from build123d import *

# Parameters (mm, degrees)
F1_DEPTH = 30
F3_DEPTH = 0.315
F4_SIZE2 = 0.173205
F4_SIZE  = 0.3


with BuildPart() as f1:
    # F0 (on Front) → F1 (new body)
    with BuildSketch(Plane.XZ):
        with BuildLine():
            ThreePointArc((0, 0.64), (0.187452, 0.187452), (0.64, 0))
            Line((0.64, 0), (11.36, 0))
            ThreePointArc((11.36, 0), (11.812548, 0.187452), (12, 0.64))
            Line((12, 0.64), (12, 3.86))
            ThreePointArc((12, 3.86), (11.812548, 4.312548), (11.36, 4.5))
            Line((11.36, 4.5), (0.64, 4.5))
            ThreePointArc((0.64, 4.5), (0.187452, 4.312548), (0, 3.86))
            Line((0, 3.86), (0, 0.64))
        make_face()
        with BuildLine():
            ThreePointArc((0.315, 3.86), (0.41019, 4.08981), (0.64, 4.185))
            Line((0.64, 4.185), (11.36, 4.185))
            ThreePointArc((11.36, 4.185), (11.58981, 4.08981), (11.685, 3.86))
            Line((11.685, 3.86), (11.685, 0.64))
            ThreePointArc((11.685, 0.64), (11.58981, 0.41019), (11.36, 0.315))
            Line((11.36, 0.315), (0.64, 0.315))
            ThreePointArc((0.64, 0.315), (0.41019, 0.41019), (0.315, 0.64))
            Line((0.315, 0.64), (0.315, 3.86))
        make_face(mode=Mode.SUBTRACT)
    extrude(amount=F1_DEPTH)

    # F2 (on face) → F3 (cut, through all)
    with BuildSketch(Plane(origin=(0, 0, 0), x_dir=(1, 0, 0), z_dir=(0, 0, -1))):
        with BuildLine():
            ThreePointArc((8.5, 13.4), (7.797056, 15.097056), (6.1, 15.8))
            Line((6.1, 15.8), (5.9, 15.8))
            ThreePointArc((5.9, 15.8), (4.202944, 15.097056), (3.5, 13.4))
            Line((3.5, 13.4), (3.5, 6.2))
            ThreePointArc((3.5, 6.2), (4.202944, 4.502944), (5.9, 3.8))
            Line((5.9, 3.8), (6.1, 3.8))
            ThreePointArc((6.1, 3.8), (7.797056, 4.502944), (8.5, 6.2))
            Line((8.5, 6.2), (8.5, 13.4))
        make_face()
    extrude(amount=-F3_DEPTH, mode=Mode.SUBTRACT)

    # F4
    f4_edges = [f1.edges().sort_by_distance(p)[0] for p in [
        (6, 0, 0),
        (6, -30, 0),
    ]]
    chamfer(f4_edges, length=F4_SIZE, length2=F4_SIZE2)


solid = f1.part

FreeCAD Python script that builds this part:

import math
import FreeCAD as App
import Part
import Sketcher

V = App.Vector
Q = App.Units.Quantity


def edges_at(feature, points):
    """Names of the edges that pass closest to the given points."""
    edges = feature.Shape.Edges
    near = lambda p: min(range(len(edges)), key=lambda i: edges[i].distToShape(Part.Vertex(*p))[0])
    return sorted({f"Edge{near(p) + 1}" for p in points})

doc = App.newDocument("Part")
body = doc.addObject("PartDesign::Body", "Body")

# Sketch on XZ plane
sketch1 = doc.addObject("Sketcher::SketchObject", "Sketch")
body.addObject(sketch1)
sketch1.AttachmentSupport = (doc.XZ_Plane, [""])
sketch1.MapMode = "FlatFace"
sketch1.addGeometry(Part.ArcOfCircle(Part.Circle(V(0.64, 0.64, 0), V(0, 0, 1), 0.64), math.radians(-180), math.radians(-90)), False)
sketch1.addGeometry(Part.LineSegment(V(0.64, 0, 0), V(11.36, 0, 0)), False)
sketch1.addGeometry(Part.ArcOfCircle(Part.Circle(V(11.36, 0.64, 0), V(0, 0, 1), 0.64), math.radians(-90), math.radians(0)), False)
sketch1.addGeometry(Part.LineSegment(V(12, 0.64, 0), V(12, 3.86, 0)), False)
sketch1.addGeometry(Part.ArcOfCircle(Part.Circle(V(11.36, 3.86, 0), V(0, 0, 1), 0.64), math.radians(0), math.radians(90)), False)
sketch1.addGeometry(Part.LineSegment(V(11.36, 4.5, 0), V(0.64, 4.5, 0)), False)
sketch1.addGeometry(Part.ArcOfCircle(Part.Circle(V(0.64, 3.86, 0), V(0, 0, 1), 0.64), math.radians(90), math.radians(180)), False)
sketch1.addGeometry(Part.LineSegment(V(0, 3.86, 0), V(0, 0.64, 0)), False)
sketch1.addGeometry(Part.LineSegment(V(0.32, 0.64, 0), V(0.32, 3.86, 0)), False)
sketch1.addGeometry(Part.ArcOfCircle(Part.Circle(V(0.64, 3.86, 0), V(0, 0, 1), 0.32), math.radians(90), math.radians(180)), False)
sketch1.addGeometry(Part.LineSegment(V(0.64, 4.18, 0), V(11.36, 4.18, 0)), False)
sketch1.addGeometry(Part.ArcOfCircle(Part.Circle(V(11.36, 3.86, 0), V(0, 0, 1), 0.32), math.radians(0), math.radians(90)), False)
sketch1.addGeometry(Part.LineSegment(V(11.69, 3.86, 0), V(11.69, 0.64, 0)), False)
sketch1.addGeometry(Part.ArcOfCircle(Part.Circle(V(11.36, 0.64, 0), V(0, 0, 1), 0.32), math.radians(-90), math.radians(0)), False)
sketch1.addGeometry(Part.LineSegment(V(11.36, 0.32, 0), V(0.64, 0.32, 0)), False)
sketch1.addGeometry(Part.ArcOfCircle(Part.Circle(V(0.64, 0.64, 0), V(0, 0, 1), 0.32), math.radians(180), math.radians(270)), False)
sketch1.addConstraint(Sketcher.Constraint("Tangent", 0, 2, 1, 1))
sketch1.addConstraint(Sketcher.Constraint("Tangent", 1, 2, 2, 1))
sketch1.addConstraint(Sketcher.Constraint("Tangent", 2, 2, 3, 1))
sketch1.addConstraint(Sketcher.Constraint("Tangent", 3, 2, 4, 1))
sketch1.addConstraint(Sketcher.Constraint("Tangent", 4, 2, 5, 1))
sketch1.addConstraint(Sketcher.Constraint("Tangent", 5, 2, 6, 1))
sketch1.addConstraint(Sketcher.Constraint("Tangent", 6, 2, 7, 1))
sketch1.addConstraint(Sketcher.Constraint("Tangent", 7, 2, 0, 1))
sketch1.addConstraint(Sketcher.Constraint("Coincident", 8, 2, 9, 2))
sketch1.addConstraint(Sketcher.Constraint("Coincident", 9, 1, 10, 1))
sketch1.addConstraint(Sketcher.Constraint("Coincident", 10, 2, 11, 2))
sketch1.addConstraint(Sketcher.Constraint("Coincident", 11, 1, 12, 1))
sketch1.addConstraint(Sketcher.Constraint("Coincident", 12, 2, 13, 2))
sketch1.addConstraint(Sketcher.Constraint("Coincident", 13, 1, 14, 1))
sketch1.addConstraint(Sketcher.Constraint("Coincident", 14, 2, 15, 2))
sketch1.addConstraint(Sketcher.Constraint("Coincident", 15, 1, 8, 1))
sketch1.addConstraint(Sketcher.Constraint("Horizontal", 1))
sketch1.addConstraint(Sketcher.Constraint("Vertical", 3))
sketch1.addConstraint(Sketcher.Constraint("Horizontal", 5))
sketch1.addConstraint(Sketcher.Constraint("Vertical", 7))
sketch1.addConstraint(Sketcher.Constraint("Vertical", 8))
sketch1.addConstraint(Sketcher.Constraint("Horizontal", 10))
sketch1.addConstraint(Sketcher.Constraint("Vertical", 12))
sketch1.addConstraint(Sketcher.Constraint("Horizontal", 14))
sketch1.addConstraint(Sketcher.Constraint("Coincident", 9, 3, 6, 3))
sketch1.addConstraint(Sketcher.Constraint("Coincident", 11, 3, 4, 3))
sketch1.addConstraint(Sketcher.Constraint("Coincident", 13, 3, 2, 3))
sketch1.addConstraint(Sketcher.Constraint("Equal", 0, 2))
sketch1.addConstraint(Sketcher.Constraint("Equal", 2, 4))
sketch1.addConstraint(Sketcher.Constraint("Equal", 4, 6))
sketch1.addConstraint(Sketcher.Constraint("Equal", 13, 15))
sketch1.addConstraint(Sketcher.Constraint("PointOnObject", 0, 2, -1))
sketch1.addConstraint(Sketcher.Constraint("PointOnObject", 6, 2, -2))
sketch1.addConstraint(Sketcher.Constraint("Horizontal", 6, 2, 8, 2))
sketch1.addConstraint(Sketcher.Constraint("Horizontal", 8, 2, 11, 1))
sketch1.addConstraint(Sketcher.Constraint("Horizontal", 7, 2, 12, 2))
sketch1.addConstraint(Sketcher.Constraint("Horizontal", 12, 2, 15, 1))
sketch1.addConstraint(Sketcher.Constraint("Vertical", 5, 2, 9, 1))
sketch1.addConstraint(Sketcher.Constraint("Vertical", 4, 2, 10, 2))
sketch1.addConstraint(Sketcher.Constraint("Vertical", 10, 2, 13, 1))
sketch1.addConstraint(Sketcher.Constraint("Vertical", 9, 1, 14, 2))
sketch1.addConstraint(Sketcher.Constraint("Radius", 0, Q("0.640001 mm")))
sketch1.addConstraint(Sketcher.Constraint("DistanceX", -1, 1, 2, 2, Q("12 mm")))
sketch1.addConstraint(Sketcher.Constraint("Radius", 9, Q("0.324999 mm")))
sketch1.addConstraint(Sketcher.Constraint("DistanceY", 3, 1, 3, 2, Q("3.22 mm")))
pad1 = doc.addObject("PartDesign::Pad", "Pad")
body.addObject(pad1)
pad1.Profile = sketch1
pad1.Length = 30

# Sketch on XY plane
sketch2 = doc.addObject("Sketcher::SketchObject", "Sketch001")
body.addObject(sketch2)
sketch2.AttachmentSupport = (doc.XY_Plane, [""])
sketch2.MapMode = "FlatFace"
sketch2.addGeometry(Part.ArcOfCircle(Part.Circle(V(6.1, -13.4, 0), V(0, 0, 1), 2.4), math.radians(-90), math.radians(0)), False)
sketch2.addGeometry(Part.LineSegment(V(6.1, -15.8, 0), V(5.9, -15.8, 0)), False)
sketch2.addGeometry(Part.ArcOfCircle(Part.Circle(V(5.9, -13.4, 0), V(0, 0, 1), 2.4), math.radians(-180), math.radians(-90)), False)
sketch2.addGeometry(Part.LineSegment(V(3.5, -13.4, 0), V(3.5, -6.2, 0)), False)
sketch2.addGeometry(Part.ArcOfCircle(Part.Circle(V(5.9, -6.2, 0), V(0, 0, 1), 2.4), math.radians(90), math.radians(180)), False)
sketch2.addGeometry(Part.LineSegment(V(5.9, -3.8, 0), V(6.1, -3.8, 0)), False)
sketch2.addGeometry(Part.ArcOfCircle(Part.Circle(V(6.1, -6.2, 0), V(0, 0, 1), 2.4), math.radians(0), math.radians(90)), False)
sketch2.addGeometry(Part.LineSegment(V(8.5, -6.2, 0), V(8.5, -13.4, 0)), False)
sketch2.addConstraint(Sketcher.Constraint("Tangent", 0, 1, 1, 1))
sketch2.addConstraint(Sketcher.Constraint("Tangent", 1, 2, 2, 2))
sketch2.addConstraint(Sketcher.Constraint("Tangent", 2, 1, 3, 1))
sketch2.addConstraint(Sketcher.Constraint("Tangent", 3, 2, 4, 2))
sketch2.addConstraint(Sketcher.Constraint("Tangent", 4, 1, 5, 1))
sketch2.addConstraint(Sketcher.Constraint("Tangent", 5, 2, 6, 2))
sketch2.addConstraint(Sketcher.Constraint("Tangent", 6, 1, 7, 1))
sketch2.addConstraint(Sketcher.Constraint("Tangent", 7, 2, 0, 2))
sketch2.addConstraint(Sketcher.Constraint("Horizontal", 1))
sketch2.addConstraint(Sketcher.Constraint("Vertical", 3))
sketch2.addConstraint(Sketcher.Constraint("Horizontal", 5))
sketch2.addConstraint(Sketcher.Constraint("Vertical", 7))
sketch2.addConstraint(Sketcher.Constraint("Equal", 0, 2))
sketch2.addConstraint(Sketcher.Constraint("Equal", 2, 4))
sketch2.addConstraint(Sketcher.Constraint("Equal", 4, 6))
sketch2.addConstraint(Sketcher.Constraint("Radius", 0, Q("2.400001 mm")))
sketch2.addConstraint(Sketcher.Constraint("DistanceX", 1, 2, 1, 1, Q("0.2 mm")))
sketch2.addConstraint(Sketcher.Constraint("DistanceY", 3, 1, 3, 2, Q("7.2 mm")))
sketch2.addConstraint(Sketcher.Constraint("DistanceX", -1, 1, 0, 3, Q("6.099999 mm")))
sketch2.addConstraint(Sketcher.Constraint("DistanceY", 0, 3, -1, 1, Q("13.399999 mm")))
pocket1 = doc.addObject("PartDesign::Pocket", "Pocket")
body.addObject(pocket1)
pocket1.Profile = sketch2
pocket1.Length = 0.315
pocket1.Reversed = True
doc.recompute()

chamfer = doc.addObject("PartDesign::Chamfer", "Chamfer")
body.addObject(chamfer)
chamfer.Base = (pocket1, edges_at(pocket1, [(6, 0, 0), (6, -30, 0)]))
chamfer.ChamferType = "Two distances"
chamfer.Size = 0.3
chamfer.Size2 = 0.173205

doc.recompute()
